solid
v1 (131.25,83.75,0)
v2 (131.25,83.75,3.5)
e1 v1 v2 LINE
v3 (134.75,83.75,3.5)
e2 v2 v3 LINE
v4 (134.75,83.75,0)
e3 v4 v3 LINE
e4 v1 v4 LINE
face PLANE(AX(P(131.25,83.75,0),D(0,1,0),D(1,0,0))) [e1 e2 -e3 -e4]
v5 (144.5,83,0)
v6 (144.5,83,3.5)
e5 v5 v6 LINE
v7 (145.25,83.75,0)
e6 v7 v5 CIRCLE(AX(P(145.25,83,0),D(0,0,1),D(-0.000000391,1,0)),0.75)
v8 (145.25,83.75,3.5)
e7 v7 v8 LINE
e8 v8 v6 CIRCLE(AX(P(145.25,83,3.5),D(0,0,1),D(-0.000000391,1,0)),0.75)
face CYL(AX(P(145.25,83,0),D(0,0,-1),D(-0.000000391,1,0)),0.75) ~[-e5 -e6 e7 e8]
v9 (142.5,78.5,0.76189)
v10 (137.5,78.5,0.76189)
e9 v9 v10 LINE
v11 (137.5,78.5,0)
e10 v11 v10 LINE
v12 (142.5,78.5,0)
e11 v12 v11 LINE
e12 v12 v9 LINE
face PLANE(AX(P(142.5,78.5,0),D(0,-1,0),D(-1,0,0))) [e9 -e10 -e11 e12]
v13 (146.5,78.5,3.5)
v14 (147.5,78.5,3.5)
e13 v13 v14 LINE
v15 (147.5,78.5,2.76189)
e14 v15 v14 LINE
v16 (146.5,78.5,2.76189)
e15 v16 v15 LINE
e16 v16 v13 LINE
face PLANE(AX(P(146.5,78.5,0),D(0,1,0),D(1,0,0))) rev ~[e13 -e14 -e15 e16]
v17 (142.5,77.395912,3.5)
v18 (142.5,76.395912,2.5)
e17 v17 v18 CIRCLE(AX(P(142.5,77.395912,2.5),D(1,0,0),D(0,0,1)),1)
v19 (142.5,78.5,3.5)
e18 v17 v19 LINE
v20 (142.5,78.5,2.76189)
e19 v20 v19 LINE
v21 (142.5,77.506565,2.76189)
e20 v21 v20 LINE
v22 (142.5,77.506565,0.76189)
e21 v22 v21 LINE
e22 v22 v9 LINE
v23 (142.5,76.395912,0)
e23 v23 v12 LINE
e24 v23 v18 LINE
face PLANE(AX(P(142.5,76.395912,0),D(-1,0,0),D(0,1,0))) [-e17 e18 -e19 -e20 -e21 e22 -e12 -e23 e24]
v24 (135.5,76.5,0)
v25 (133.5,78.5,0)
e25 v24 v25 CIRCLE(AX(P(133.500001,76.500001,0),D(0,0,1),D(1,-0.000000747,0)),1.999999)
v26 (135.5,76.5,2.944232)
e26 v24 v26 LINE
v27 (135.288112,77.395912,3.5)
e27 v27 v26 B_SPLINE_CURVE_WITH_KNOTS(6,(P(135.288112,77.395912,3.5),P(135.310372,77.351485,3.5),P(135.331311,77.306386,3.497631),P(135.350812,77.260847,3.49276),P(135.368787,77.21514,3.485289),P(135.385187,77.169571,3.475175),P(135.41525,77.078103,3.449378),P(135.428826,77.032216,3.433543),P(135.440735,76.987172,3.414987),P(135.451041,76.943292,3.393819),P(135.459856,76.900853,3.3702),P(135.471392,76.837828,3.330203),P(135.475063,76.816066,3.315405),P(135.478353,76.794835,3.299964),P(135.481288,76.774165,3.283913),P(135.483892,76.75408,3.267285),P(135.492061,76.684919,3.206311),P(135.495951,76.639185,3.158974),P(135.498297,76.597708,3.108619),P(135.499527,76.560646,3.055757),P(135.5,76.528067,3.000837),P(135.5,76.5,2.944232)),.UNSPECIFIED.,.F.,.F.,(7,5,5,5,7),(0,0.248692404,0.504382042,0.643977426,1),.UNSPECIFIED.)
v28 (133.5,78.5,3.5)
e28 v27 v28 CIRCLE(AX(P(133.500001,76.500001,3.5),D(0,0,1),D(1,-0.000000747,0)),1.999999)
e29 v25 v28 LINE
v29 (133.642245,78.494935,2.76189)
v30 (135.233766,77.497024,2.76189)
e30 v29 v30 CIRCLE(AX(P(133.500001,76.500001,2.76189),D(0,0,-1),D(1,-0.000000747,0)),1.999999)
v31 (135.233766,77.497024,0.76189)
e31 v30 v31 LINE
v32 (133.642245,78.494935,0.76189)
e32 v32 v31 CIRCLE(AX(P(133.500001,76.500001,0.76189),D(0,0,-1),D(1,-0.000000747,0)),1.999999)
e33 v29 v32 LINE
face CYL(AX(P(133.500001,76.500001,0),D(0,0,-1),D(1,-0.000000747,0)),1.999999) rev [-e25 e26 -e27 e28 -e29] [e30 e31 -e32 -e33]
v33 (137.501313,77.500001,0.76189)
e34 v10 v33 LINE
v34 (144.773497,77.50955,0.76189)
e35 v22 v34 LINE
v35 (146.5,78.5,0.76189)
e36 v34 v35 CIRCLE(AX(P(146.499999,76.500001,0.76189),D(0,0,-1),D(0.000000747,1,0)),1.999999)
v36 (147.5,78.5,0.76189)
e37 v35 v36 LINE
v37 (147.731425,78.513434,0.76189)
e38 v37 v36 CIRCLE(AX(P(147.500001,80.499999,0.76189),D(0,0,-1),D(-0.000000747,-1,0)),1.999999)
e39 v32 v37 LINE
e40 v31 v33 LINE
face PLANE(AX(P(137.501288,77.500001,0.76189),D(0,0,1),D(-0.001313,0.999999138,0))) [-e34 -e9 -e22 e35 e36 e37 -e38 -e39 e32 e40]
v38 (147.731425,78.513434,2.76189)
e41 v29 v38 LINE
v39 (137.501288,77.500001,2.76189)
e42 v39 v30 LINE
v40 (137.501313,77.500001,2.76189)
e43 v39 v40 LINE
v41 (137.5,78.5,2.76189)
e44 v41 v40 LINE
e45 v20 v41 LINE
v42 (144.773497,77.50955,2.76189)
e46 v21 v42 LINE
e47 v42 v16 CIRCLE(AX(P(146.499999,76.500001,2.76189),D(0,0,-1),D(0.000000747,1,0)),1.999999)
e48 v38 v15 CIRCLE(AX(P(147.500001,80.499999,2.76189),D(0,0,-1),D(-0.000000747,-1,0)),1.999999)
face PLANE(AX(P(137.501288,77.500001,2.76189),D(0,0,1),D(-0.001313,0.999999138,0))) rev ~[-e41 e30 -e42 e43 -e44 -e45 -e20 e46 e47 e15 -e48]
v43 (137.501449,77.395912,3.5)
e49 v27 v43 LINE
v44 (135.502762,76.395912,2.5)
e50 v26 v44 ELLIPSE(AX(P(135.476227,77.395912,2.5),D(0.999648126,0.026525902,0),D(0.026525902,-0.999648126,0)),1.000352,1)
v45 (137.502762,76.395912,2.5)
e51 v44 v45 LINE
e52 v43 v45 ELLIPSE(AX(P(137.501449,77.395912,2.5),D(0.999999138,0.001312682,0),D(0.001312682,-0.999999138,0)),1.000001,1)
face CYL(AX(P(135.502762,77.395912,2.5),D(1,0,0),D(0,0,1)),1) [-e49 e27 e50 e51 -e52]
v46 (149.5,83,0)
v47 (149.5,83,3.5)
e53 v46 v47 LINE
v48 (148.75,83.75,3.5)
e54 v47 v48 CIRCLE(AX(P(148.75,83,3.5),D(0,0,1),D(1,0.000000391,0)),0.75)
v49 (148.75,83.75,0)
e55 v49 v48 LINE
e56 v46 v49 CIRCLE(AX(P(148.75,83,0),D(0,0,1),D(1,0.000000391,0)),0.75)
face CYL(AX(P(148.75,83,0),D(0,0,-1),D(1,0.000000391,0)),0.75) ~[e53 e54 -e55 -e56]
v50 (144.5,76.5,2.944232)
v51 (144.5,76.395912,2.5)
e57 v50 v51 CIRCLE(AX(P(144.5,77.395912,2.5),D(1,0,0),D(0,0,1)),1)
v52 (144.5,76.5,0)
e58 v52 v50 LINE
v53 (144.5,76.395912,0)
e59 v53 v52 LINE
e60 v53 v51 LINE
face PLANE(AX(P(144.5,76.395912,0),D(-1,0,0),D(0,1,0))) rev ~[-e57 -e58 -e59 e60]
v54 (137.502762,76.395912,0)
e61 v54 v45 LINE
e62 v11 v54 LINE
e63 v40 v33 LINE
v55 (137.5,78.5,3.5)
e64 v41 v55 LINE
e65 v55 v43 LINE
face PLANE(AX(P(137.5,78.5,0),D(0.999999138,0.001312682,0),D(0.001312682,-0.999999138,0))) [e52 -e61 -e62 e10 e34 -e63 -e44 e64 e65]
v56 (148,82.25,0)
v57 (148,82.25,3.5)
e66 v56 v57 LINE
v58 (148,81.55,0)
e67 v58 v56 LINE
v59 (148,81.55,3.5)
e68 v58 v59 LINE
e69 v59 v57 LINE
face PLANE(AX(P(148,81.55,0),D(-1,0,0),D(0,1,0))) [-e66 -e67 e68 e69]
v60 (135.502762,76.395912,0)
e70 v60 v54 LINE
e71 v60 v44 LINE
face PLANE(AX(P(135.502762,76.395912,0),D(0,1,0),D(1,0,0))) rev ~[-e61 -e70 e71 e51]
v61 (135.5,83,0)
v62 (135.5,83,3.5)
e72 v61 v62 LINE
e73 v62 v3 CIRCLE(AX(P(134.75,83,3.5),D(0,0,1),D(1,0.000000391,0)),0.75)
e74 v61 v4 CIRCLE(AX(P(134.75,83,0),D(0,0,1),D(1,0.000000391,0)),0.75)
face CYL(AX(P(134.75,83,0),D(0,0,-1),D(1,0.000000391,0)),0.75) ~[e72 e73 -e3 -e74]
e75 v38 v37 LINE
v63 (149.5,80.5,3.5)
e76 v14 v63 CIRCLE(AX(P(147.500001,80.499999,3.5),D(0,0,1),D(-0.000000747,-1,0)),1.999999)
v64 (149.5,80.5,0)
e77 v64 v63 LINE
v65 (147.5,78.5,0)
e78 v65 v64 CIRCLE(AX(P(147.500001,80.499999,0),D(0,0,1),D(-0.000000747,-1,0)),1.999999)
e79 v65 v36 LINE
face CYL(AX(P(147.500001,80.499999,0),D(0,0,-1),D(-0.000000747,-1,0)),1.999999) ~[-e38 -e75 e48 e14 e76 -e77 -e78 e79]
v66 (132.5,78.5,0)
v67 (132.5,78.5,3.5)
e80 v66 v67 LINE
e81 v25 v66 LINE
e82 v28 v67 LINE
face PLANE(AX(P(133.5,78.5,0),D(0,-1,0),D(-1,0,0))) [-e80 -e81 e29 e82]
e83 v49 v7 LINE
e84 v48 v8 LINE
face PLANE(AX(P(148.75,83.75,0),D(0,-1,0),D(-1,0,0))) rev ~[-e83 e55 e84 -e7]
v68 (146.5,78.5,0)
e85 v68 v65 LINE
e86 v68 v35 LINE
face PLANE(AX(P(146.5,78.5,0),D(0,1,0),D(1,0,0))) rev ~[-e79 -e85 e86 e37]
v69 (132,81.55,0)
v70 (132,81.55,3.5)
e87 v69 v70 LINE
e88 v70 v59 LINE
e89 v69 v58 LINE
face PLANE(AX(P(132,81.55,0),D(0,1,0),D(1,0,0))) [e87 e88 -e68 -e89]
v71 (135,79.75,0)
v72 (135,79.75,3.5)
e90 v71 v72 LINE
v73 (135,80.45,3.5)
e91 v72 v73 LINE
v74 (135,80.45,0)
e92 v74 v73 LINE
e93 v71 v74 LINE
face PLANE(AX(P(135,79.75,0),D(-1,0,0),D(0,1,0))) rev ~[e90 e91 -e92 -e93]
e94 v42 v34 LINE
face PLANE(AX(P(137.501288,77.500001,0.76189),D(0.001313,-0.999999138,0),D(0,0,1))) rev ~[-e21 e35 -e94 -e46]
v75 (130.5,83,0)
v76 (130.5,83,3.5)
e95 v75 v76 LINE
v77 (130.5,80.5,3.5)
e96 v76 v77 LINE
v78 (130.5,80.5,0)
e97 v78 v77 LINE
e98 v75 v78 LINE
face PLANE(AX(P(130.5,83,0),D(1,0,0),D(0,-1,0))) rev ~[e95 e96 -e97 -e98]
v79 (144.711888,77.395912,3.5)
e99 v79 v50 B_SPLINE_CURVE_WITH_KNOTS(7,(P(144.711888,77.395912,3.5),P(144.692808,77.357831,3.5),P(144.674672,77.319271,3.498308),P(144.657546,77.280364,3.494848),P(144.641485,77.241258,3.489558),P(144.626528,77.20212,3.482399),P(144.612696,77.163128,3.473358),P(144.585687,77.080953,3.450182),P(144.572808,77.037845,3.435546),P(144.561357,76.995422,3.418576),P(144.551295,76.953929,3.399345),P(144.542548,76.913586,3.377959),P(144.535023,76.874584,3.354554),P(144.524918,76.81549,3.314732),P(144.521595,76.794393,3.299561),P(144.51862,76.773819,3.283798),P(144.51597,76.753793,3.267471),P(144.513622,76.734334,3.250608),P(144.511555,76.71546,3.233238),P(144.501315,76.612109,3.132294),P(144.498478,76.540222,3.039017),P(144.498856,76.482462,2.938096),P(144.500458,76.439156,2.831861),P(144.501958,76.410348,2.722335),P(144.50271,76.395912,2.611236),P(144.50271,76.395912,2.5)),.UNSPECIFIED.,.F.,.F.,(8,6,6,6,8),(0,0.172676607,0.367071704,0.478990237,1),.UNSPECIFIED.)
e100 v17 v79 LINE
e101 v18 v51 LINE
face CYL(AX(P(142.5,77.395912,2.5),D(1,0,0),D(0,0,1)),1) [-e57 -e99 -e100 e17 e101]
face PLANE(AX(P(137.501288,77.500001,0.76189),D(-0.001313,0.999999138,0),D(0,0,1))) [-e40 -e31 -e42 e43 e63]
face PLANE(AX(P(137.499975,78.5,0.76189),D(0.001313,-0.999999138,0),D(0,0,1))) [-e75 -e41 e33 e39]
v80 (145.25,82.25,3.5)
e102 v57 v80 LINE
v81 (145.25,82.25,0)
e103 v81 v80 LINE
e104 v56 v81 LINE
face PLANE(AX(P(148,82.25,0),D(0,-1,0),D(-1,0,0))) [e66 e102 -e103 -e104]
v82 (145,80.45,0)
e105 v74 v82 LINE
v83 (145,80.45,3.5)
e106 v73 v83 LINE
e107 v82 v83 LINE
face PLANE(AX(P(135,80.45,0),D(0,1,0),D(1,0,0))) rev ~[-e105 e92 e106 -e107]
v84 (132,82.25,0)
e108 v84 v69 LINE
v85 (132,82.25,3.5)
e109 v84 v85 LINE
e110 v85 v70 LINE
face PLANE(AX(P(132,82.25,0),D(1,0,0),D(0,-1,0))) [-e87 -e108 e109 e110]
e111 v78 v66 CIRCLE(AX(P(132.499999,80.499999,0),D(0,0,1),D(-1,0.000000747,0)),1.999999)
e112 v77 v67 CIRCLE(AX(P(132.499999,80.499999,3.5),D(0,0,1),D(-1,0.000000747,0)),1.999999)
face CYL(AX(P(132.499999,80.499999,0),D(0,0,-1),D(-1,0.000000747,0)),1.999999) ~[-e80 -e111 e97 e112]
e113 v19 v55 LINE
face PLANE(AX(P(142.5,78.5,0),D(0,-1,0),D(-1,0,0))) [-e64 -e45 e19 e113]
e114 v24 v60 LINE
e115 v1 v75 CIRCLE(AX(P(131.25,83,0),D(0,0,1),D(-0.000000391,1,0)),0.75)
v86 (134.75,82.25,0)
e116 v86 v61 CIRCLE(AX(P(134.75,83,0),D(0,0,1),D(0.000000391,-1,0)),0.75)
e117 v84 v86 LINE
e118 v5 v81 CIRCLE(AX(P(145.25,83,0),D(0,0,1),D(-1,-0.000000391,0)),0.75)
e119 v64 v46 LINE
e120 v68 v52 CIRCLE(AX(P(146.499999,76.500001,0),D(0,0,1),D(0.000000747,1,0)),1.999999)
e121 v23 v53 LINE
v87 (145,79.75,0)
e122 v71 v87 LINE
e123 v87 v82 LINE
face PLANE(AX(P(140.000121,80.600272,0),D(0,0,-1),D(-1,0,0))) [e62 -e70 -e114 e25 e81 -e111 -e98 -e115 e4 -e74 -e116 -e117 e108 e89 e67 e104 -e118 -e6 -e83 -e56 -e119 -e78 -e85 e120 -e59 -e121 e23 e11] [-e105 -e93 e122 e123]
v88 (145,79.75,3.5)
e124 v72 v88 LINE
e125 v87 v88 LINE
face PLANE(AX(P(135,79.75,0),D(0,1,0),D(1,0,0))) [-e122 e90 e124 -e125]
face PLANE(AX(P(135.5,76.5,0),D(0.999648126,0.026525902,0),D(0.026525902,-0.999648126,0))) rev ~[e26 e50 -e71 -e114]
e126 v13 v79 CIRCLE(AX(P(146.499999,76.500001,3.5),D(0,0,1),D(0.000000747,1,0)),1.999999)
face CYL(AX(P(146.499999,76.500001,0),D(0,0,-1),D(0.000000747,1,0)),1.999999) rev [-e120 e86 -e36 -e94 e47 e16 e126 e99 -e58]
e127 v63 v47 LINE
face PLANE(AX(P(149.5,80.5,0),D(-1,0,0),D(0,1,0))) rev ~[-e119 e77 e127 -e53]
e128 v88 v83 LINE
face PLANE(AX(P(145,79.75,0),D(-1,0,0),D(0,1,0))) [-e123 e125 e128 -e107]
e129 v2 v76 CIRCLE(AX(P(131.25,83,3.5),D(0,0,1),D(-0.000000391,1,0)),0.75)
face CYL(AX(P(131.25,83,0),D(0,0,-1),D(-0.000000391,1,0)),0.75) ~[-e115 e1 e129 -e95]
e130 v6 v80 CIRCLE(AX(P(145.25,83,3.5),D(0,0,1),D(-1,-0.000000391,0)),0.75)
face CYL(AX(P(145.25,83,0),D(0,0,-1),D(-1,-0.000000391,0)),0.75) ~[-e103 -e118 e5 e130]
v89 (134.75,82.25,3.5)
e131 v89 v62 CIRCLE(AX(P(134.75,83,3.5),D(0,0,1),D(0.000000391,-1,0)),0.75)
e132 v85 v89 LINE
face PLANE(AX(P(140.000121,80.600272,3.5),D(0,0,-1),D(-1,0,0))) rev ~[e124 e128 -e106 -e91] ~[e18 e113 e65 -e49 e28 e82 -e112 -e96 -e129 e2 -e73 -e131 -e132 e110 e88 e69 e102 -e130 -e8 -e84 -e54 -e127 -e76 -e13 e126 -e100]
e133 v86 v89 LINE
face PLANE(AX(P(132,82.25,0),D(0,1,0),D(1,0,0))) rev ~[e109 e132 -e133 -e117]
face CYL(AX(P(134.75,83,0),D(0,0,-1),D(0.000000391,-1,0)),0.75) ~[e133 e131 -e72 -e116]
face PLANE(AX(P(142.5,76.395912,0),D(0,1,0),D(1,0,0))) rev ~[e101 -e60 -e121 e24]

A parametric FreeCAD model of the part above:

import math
import FreeCAD as App
import Part
import Sketcher
from FreeCAD import Vector
Q = App.Units.Quantity


def edges_at(feature, points):
    """Names of the edges that pass closest to the given points."""
    edges = feature.Shape.Edges
    near = lambda p: min(range(len(edges)), key=lambda i: edges[i].distToShape(Part.Vertex(*p))[0])
    return sorted({f"Edge{near(p) + 1}" for p in points})

doc = App.newDocument("Part")
body = doc.addObject("PartDesign::Body", "Body")

# Sketch on XY plane
sketch1 = body.newObject("Sketcher::SketchObject", "Sketch")
sketch1.AttachmentSupport = (doc.getObject("XY_Plane"), [""])
sketch1.MapMode = "FlatFace"
sketch1.addGeometry([
    Part.LineSegment(Vector(148, 82.25, 0), Vector(148, 81.55, 0)),  # 0
    Part.LineSegment(Vector(148, 81.55, 0), Vector(132, 81.55, 0)),  # 1
    Part.LineSegment(Vector(132, 81.55, 0), Vector(132, 82.25, 0)),  # 2
    Part.LineSegment(Vector(132, 82.25, 0), Vector(134.75, 82.25, 0)),  # 3
    Part.ArcOfCircle(Part.Circle(Vector(134.75, 83, 0), Vector(0, 0, 1), 0.75), math.radians(-89.999978), math.radians(-0.000022)),  # 4
    Part.ArcOfCircle(Part.Circle(Vector(134.75, 83, 0), Vector(0, 0, 1), 0.75), math.radians(0.000022), math.radians(89.999978)),  # 5
    Part.LineSegment(Vector(134.75, 83.75, 0), Vector(131.25, 83.75, 0)),  # 6
    Part.ArcOfCircle(Part.Circle(Vector(131.25, 83, 0), Vector(0, 0, 1), 0.75), math.radians(90.000022), math.radians(179.999978)),  # 7
    Part.LineSegment(Vector(130.5, 83, 0), Vector(130.5, 80.5, 0)),  # 8
    Part.ArcOfCircle(Part.Circle(Vector(132.499999, 80.499999, 0), Vector(0, 0, 1), 1.999999), math.radians(179.999957), math.radians(270.000043)),  # 9
    Part.LineSegment(Vector(132.5, 78.5, 0), Vector(133.5, 78.5, 0)),  # 10
    Part.ArcOfCircle(Part.Circle(Vector(133.500001, 76.500001, 0), Vector(0, 0, 1), 1.999999), math.radians(-0.000043), math.radians(90.000043)),  # 11
    Part.LineSegment(Vector(135.5, 76.5, 0), Vector(135.502762, 76.395912, 0)),  # 12
    Part.LineSegment(Vector(135.502762, 76.395912, 0), Vector(137.502762, 76.395912, 0)),  # 13
    Part.LineSegment(Vector(137.502762, 76.395912, 0), Vector(137.5, 78.5, 0)),  # 14
    Part.LineSegment(Vector(137.5, 78.5, 0), Vector(142.5, 78.5, 0)),  # 15
    Part.LineSegment(Vector(142.5, 78.5, 0), Vector(142.5, 76.395912, 0)),  # 16
    Part.LineSegment(Vector(142.5, 76.395912, 0), Vector(144.5, 76.395912, 0)),  # 17
    Part.LineSegment(Vector(144.5, 76.395912, 0), Vector(144.5, 76.5, 0)),  # 18
    Part.ArcOfCircle(Part.Circle(Vector(146.499999, 76.500001, 0), Vector(0, 0, 1), 1.999999), math.radians(89.999957), math.radians(180.000043)),  # 19
    Part.LineSegment(Vector(146.5, 78.5, 0), Vector(147.5, 78.5, 0)),  # 20
    Part.ArcOfCircle(Part.Circle(Vector(147.500001, 80.499999, 0), Vector(0, 0, 1), 1.999999), math.radians(-90.000043), math.radians(0.000043)),  # 21
    Part.LineSegment(Vector(149.5, 80.5, 0), Vector(149.5, 83, 0)),  # 22
    Part.ArcOfCircle(Part.Circle(Vector(148.75, 83, 0), Vector(0, 0, 1), 0.75), math.radians(0.000022), math.radians(89.999978)),  # 23
    Part.LineSegment(Vector(148.75, 83.75, 0), Vector(145.25, 83.75, 0)),  # 24
    Part.ArcOfCircle(Part.Circle(Vector(145.25, 83, 0), Vector(0, 0, 1), 0.75), math.radians(90.000022), math.radians(179.999978)),  # 25
    Part.ArcOfCircle(Part.Circle(Vector(145.25, 83, 0), Vector(0, 0, 1), 0.75), math.radians(-179.999978), math.radians(-90.000022)),  # 26
    Part.LineSegment(Vector(145.25, 82.25, 0), Vector(148, 82.25, 0)),  # 27
    Part.LineSegment(Vector(135, 79.75, 0), Vector(135, 80.45, 0)),  # 28
    Part.LineSegment(Vector(135, 80.45, 0), Vector(145, 80.45, 0)),  # 29
    Part.LineSegment(Vector(145, 80.45, 0), Vector(145, 79.75, 0)),  # 30
    Part.LineSegment(Vector(145, 79.75, 0), Vector(135, 79.75, 0)),  # 31
], False)
sketch1.addConstraint([
    Sketcher.Constraint("Coincident", 0, 2, 1, 1),
    Sketcher.Constraint("Coincident", 1, 2, 2, 1),
    Sketcher.Constraint("Coincident", 2, 2, 3, 1),
    Sketcher.Constraint("Tangent", 3, 2, 4, 1),
    Sketcher.Constraint("Tangent", 4, 2, 5, 1),
    Sketcher.Constraint("Tangent", 5, 2, 6, 1),
    Sketcher.Constraint("Tangent", 6, 2, 7, 1),
    Sketcher.Constraint("Tangent", 7, 2, 8, 1),
    Sketcher.Constraint("Tangent", 8, 2, 9, 1),
    Sketcher.Constraint("Tangent", 9, 2, 10, 1),
    Sketcher.Constraint("Tangent", 10, 2, 11, 2),
    Sketcher.Constraint("Coincident", 11, 1, 12, 1),
    Sketcher.Constraint("Coincident", 12, 2, 13, 1),
    Sketcher.Constraint("Coincident", 13, 2, 14, 1),
    Sketcher.Constraint("Coincident", 14, 2, 15, 1),
    Sketcher.Constraint("Coincident", 15, 2, 16, 1),
    Sketcher.Constraint("Coincident", 16, 2, 17, 1),
    Sketcher.Constraint("Coincident", 17, 2, 18, 1),
    Sketcher.Constraint("Tangent", 18, 2, 19, 2),
    Sketcher.Constraint("Tangent", 19, 1, 20, 1),
    Sketcher.Constraint("Tangent", 20, 2, 21, 1),
    Sketcher.Constraint("Tangent", 21, 2, 22, 1),
    Sketcher.Constraint("Tangent", 22, 2, 23, 1),
    Sketcher.Constraint("Tangent", 23, 2, 24, 1),
    Sketcher.Constraint("Tangent", 24, 2, 25, 1),
    Sketcher.Constraint("Tangent", 25, 2, 26, 1),
    Sketcher.Constraint("Tangent", 26, 2, 27, 1),
    Sketcher.Constraint("Coincident", 27, 2, 0, 1),
    Sketcher.Constraint("Coincident", 28, 2, 29, 1),
    Sketcher.Constraint("Coincident", 29, 2, 30, 1),
    Sketcher.Constraint("Coincident", 30, 2, 31, 1),
    Sketcher.Constraint("Coincident", 31, 2, 28, 1),
    Sketcher.Constraint("Vertical", 0),
    Sketcher.Constraint("Horizontal", 1),
    Sketcher.Constraint("Vertical", 2),
    Sketcher.Constraint("Horizontal", 3),
    Sketcher.Constraint("Horizontal", 6),
    Sketcher.Constraint("Vertical", 8),
    Sketcher.Constraint("Horizontal", 10),
    Sketcher.Constraint("Horizontal", 13),
    Sketcher.Constraint("Horizontal", 15),
    Sketcher.Constraint("Vertical", 16),
    Sketcher.Constraint("Horizontal", 17),
    Sketcher.Constraint("Vertical", 18),
    Sketcher.Constraint("Horizontal", 20),
    Sketcher.Constraint("Vertical", 22),
    Sketcher.Constraint("Horizontal", 24),
    Sketcher.Constraint("Horizontal", 27),
    Sketcher.Constraint("Vertical", 28),
    Sketcher.Constraint("Horizontal", 29),
    Sketcher.Constraint("Vertical", 30),
    Sketcher.Constraint("Horizontal", 31),
    Sketcher.Constraint("Equal", 4, 5),
    Sketcher.Constraint("Equal", 5, 7),
    Sketcher.Constraint("Equal", 9, 11),
    Sketcher.Constraint("Equal", 11, 19),
    Sketcher.Constraint("Equal", 19, 21),
    Sketcher.Constraint("Equal", 7, 23),
    Sketcher.Constraint("Equal", 23, 25),
    Sketcher.Constraint("Equal", 25, 26),
    Sketcher.Constraint("Horizontal", 11, 3, 19, 3),
    Sketcher.Constraint("Horizontal", 7, 3, 23, 3),
    Sketcher.Constraint("Horizontal", 26, 3, 4, 2),
    Sketcher.Constraint("Horizontal", 19, 3, 11, 1),
    Sketcher.Constraint("Horizontal", 10, 2, 14, 2),
    Sketcher.Constraint("Horizontal", 13, 2, 16, 2),
    Sketcher.Constraint("Horizontal", 22, 2, 25, 2),
    Sketcher.Constraint("Vertical", 4, 2, 11, 1),
    Sketcher.Constraint("Vertical", 18, 2, 25, 2),
    Sketcher.Constraint("Equal", 13, 17),
    Sketcher.Constraint("Equal", 10, 20),
    Sketcher.Constraint("Equal", 3, 27),
    Sketcher.Constraint("Equal", 2, 28),
    Sketcher.Constraint("Radius", 9, 1.999999),
    Sketcher.Constraint("DistanceX", 1, 2, 1, 1, 16.0),
    Sketcher.Constraint("DistanceX", 10, 1, 10, 2, 1.0),
    Sketcher.Constraint("DistanceX", 13, 1, 13, 2, 2.0),
    Sketcher.Constraint("DistanceX", 15, 1, 15, 2, 5.0),
    Sketcher.Constraint("DistanceX", 29, 1, 29, 2, 10.0),
    Sketcher.Constraint("Radius", 4, 0.75),
    Sketcher.Constraint("DistanceY", 0, 2, 0, 1, 0.7),
    Sketcher.Constraint("DistanceY", 8, 2, 8, 1, 2.5),
    Sketcher.Constraint("DistanceY", -1, 1, 4, 3, 83.0),
    Sketcher.Constraint("DistanceX", -1, 1, 0, 2, 148.0),
    Sketcher.Constraint("DistanceX", -1, 1, 28, 2, 135.0),
    Sketcher.Constraint("DistanceX", 9, 3, 19, 3, 14.0),
    Sketcher.Constraint("Angle", 12, Q("-88.479999 deg")),
    Sketcher.Constraint("DistanceY", 28, 2, 3, 2, 1.8),
    Sketcher.Constraint("DistanceY", 16, 2, 16, 1, 2.104088),
])
pad1 = body.newObject("PartDesign::Pad", "Pad")
pad1.Profile = sketch1
pad1.Length = 3.5

# Sketch on an angled plane
sketch2 = body.newObject("Sketcher::SketchObject", "Sketch001")
sketch2.Placement = App.Placement(Vector(137.602808, 0.180629, 0), App.Rotation(Vector(-0.001313, 0.999999138, 0), Vector(0, 0, 1), Vector(0.999999138, 0.001313, 0), "ZXY"))
sketch2.addGeometry([
    Part.LineSegment(Vector(77.319439, 2.76189, 0), Vector(77.319439, 0.76189, 0)),
    Part.LineSegment(Vector(77.319439, 0.76189, 0), Vector(78.319439, 0.76189, 0)),
    Part.LineSegment(Vector(78.319439, 0.76189, 0), Vector(78.319439, 2.76189, 0)),
    Part.LineSegment(Vector(78.319439, 2.76189, 0), Vector(77.319439, 2.76189, 0)),
], False)
sketch2.addConstraint([
    Sketcher.Constraint("Coincident", 0, 2, 1, 1),
    Sketcher.Constraint("Coincident", 1, 2, 2, 1),
    Sketcher.Constraint("Coincident", 2, 2, 3, 1),
    Sketcher.Constraint("Coincident", 3, 2, 0, 1),
    Sketcher.Constraint("Vertical", 0),
    Sketcher.Constraint("Horizontal", 1),
    Sketcher.Constraint("Vertical", 2),
    Sketcher.Constraint("Horizontal", 3),
    Sketcher.Constraint("DistanceX", 1, 1, 1, 2, 1.0),
    Sketcher.Constraint("DistanceY", 0, 2, 0, 1, 2.0),
    Sketcher.Constraint("DistanceX", -1, 1, 0, 2, 77.319439),
    Sketcher.Constraint("DistanceY", -1, 1, 0, 2, 0.76189),
])
pocket1 = body.newObject("PartDesign::Pocket", "Pocket")
pocket1.Profile = sketch2
pocket1.Type = "ThroughAll"
pocket1.Midplane = True
doc.recompute()

fillet = body.newObject("PartDesign::Fillet", "Fillet")
fillet.Base = (pocket1, edges_at(pocket1, [(143.5, 76.396, 3.5), (136.503, 76.396, 3.5)]))
fillet.Radius = 1

doc.recompute()
